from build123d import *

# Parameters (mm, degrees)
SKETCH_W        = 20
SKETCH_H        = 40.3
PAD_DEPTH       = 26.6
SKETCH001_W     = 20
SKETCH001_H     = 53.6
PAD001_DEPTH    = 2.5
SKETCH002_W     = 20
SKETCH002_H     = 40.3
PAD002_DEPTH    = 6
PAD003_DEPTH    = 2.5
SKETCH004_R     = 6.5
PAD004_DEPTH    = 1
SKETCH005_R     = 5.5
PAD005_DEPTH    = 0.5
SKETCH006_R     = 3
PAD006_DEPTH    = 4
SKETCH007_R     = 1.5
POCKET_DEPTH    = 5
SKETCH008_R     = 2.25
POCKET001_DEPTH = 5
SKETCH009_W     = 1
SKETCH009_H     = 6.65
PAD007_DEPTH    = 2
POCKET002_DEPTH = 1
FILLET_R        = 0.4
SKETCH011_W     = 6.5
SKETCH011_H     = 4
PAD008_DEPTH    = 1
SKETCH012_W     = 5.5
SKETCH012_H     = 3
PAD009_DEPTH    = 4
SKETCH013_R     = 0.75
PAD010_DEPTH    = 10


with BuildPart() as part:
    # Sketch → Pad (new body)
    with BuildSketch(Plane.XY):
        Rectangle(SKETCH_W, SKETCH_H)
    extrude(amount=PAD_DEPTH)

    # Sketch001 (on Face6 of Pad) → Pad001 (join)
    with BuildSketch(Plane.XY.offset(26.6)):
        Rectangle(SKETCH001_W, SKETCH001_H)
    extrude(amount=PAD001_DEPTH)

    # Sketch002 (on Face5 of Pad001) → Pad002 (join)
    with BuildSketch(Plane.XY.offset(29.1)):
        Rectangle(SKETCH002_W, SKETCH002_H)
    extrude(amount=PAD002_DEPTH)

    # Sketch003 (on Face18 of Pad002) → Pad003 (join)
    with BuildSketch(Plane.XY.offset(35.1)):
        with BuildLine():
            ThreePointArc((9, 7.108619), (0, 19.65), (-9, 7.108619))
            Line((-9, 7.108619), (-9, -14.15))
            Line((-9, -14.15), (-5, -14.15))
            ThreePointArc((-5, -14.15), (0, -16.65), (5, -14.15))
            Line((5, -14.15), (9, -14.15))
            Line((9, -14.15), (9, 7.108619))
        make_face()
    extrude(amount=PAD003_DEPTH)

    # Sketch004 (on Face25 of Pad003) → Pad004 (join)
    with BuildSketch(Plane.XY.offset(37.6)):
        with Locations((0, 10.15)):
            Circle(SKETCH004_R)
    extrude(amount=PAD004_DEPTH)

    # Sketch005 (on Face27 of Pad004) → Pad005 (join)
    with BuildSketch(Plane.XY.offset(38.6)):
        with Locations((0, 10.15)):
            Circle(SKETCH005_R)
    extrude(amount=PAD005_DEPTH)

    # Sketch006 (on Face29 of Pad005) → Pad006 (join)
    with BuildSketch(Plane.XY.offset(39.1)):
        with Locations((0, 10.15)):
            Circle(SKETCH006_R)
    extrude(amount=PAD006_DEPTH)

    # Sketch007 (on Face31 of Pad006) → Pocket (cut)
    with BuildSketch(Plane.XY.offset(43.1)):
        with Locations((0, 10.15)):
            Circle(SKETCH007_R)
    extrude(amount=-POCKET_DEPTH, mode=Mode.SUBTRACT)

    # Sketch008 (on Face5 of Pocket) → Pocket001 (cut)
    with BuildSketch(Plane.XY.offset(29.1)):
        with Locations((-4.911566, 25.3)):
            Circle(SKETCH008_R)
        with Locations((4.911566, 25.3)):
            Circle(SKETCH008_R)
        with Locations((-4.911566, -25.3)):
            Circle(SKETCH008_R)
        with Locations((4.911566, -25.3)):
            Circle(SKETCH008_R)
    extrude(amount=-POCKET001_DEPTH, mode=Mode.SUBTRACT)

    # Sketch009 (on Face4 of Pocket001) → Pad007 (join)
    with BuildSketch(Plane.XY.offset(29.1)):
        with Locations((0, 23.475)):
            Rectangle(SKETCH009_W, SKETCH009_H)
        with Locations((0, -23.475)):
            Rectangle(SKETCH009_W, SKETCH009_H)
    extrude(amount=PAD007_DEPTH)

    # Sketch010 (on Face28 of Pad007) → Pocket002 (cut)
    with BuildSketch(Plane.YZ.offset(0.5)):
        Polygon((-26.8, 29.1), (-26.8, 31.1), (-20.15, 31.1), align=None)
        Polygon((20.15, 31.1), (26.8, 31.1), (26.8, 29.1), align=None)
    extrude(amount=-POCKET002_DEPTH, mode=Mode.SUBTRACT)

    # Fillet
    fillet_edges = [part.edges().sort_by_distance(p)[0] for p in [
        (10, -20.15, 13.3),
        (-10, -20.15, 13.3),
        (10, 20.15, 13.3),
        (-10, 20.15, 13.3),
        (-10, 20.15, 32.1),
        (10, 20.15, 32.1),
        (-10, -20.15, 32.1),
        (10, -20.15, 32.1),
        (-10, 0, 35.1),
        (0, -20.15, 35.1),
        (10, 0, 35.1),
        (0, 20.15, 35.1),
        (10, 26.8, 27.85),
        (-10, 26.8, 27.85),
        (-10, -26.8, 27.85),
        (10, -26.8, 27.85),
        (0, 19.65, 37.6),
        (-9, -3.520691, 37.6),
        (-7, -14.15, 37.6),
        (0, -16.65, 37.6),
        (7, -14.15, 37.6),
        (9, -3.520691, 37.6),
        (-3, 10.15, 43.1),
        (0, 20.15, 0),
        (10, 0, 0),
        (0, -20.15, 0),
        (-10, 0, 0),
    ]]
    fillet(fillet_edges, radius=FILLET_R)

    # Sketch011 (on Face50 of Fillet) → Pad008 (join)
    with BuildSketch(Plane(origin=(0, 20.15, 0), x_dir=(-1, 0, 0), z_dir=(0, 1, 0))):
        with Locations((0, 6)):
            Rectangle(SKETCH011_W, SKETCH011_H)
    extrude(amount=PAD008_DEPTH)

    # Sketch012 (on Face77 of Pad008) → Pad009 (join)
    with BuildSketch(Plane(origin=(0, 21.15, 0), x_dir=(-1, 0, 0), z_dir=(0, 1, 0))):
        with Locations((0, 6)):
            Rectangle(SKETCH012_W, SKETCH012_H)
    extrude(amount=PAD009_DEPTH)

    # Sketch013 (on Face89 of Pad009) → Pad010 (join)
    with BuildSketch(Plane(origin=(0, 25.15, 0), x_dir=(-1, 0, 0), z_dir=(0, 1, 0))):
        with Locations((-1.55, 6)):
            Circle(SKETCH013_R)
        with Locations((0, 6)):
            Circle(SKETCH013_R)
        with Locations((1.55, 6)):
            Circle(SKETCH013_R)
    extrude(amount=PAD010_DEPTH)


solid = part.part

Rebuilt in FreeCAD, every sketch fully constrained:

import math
import FreeCAD as App
import Part
import Sketcher
from FreeCAD import Vector
Q = App.Units.Quantity


def edges_at(feature, points):
    """Names of the edges that pass closest to the given points."""
    edges = feature.Shape.Edges
    near = lambda p: min(range(len(edges)), key=lambda i: edges[i].distToShape(Part.Vertex(*p))[0])
    return sorted({f"Edge{near(p) + 1}" for p in points})

doc = App.newDocument("Part")
body = doc.addObject("PartDesign::Body", "Body")

# Sketch on XY plane
sketch1 = doc.addObject("Sketcher::SketchObject", "Sketch")
body.addObject(sketch1)
sketch1.AttachmentSupport = (doc.XY_Plane, [""])
sketch1.MapMode = "FlatFace"
sketch1.addGeometry(Part.LineSegment(Vector(-10, 20, 0), Vector(-10, -20, 0)), False)
sketch1.addGeometry(Part.LineSegment(Vector(-10, -20, 0), Vector(10, -20, 0)), False)
sketch1.addGeometry(Part.LineSegment(Vector(10, -20, 0), Vector(10, 20, 0)), False)
sketch1.addGeometry(Part.LineSegment(Vector(10, 20, 0), Vector(-10, 20, 0)), False)
sketch1.addConstraint(Sketcher.Constraint("Coincident", 0, 2, 1, 1))
sketch1.addConstraint(Sketcher.Constraint("Coincident", 1, 2, 2, 1))
sketch1.addConstraint(Sketcher.Constraint("Coincident", 2, 2, 3, 1))
sketch1.addConstraint(Sketcher.Constraint("Coincident", 3, 2, 0, 1))
sketch1.addConstraint(Sketcher.Constraint("Vertical", 0))
sketch1.addConstraint(Sketcher.Constraint("Horizontal", 1))
sketch1.addConstraint(Sketcher.Constraint("Vertical", 2))
sketch1.addConstraint(Sketcher.Constraint("Horizontal", 3))
sketch1.addConstraint(Sketcher.Constraint("Symmetric", 0, 2, 2, 2, -1, 1))
sketch1.addConstraint(Sketcher.Constraint("DistanceX", 1, 1, 1, 2, Q("20 mm")))
sketch1.addConstraint(Sketcher.Constraint("DistanceY", 0, 2, 0, 1, Q("40.3 mm")))
pad1 = doc.addObject("PartDesign::Pad", "Pad")
body.addObject(pad1)
pad1.Profile = sketch1
pad1.Length = 26.6

# Sketch on XY plane
sketch2 = doc.addObject("Sketcher::SketchObject", "Sketch001")
body.addObject(sketch2)
sketch2.AttachmentSupport = (doc.XY_Plane, [""])
sketch2.MapMode = "FlatFace"
sketch2.AttachmentOffset = App.Placement(Vector(0, 0, 26.6), App.Rotation())
sketch2.addGeometry(Part.LineSegment(Vector(-10, 27, 0), Vector(-10, -27, 0)), False)
sketch2.addGeometry(Part.LineSegment(Vector(-10, -27, 0), Vector(10, -27, 0)), False)
sketch2.addGeometry(Part.LineSegment(Vector(10, -27, 0), Vector(10, 27, 0)), False)
sketch2.addGeometry(Part.LineSegment(Vector(10, 27, 0), Vector(-10, 27, 0)), False)
sketch2.addConstraint(Sketcher.Constraint("Coincident", 0, 2, 1, 1))
sketch2.addConstraint(Sketcher.Constraint("Coincident", 1, 2, 2, 1))
sketch2.addConstraint(Sketcher.Constraint("Coincident", 2, 2, 3, 1))
sketch2.addConstraint(Sketcher.Constraint("Coincident", 3, 2, 0, 1))
sketch2.addConstraint(Sketcher.Constraint("Vertical", 0))
sketch2.addConstraint(Sketcher.Constraint("Horizontal", 1))
sketch2.addConstraint(Sketcher.Constraint("Vertical", 2))
sketch2.addConstraint(Sketcher.Constraint("Horizontal", 3))
sketch2.addConstraint(Sketcher.Constraint("Symmetric", 0, 2, 2, 2, -1, 1))
sketch2.addConstraint(Sketcher.Constraint("DistanceX", 1, 1, 1, 2, Q("20 mm")))
sketch2.addConstraint(Sketcher.Constraint("DistanceY", 0, 2, 0, 1, Q("53.6 mm")))
pad2 = doc.addObject("PartDesign::Pad", "Pad001")
body.addObject(pad2)
pad2.Profile = sketch2
pad2.Length = 2.5

# Sketch on XY plane
sketch3 = doc.addObject("Sketcher::SketchObject", "Sketch002")
body.addObject(sketch3)
sketch3.AttachmentSupport = (doc.XY_Plane, [""])
sketch3.MapMode = "FlatFace"
sketch3.AttachmentOffset = App.Placement(Vector(0, 0, 29.1), App.Rotation())
sketch3.addGeometry(Part.LineSegment(Vector(-10, 20, 0), Vector(-10, -20, 0)), False)
sketch3.addGeometry(Part.LineSegment(Vector(-10, -20, 0), Vector(10, -20, 0)), False)
sketch3.addGeometry(Part.LineSegment(Vector(10, -20, 0), Vector(10, 20, 0)), False)
sketch3.addGeometry(Part.LineSegment(Vector(10, 20, 0), Vector(-10, 20, 0)), False)
sketch3.addConstraint(Sketcher.Constraint("Coincident", 0, 2, 1, 1))
sketch3.addConstraint(Sketcher.Constraint("Coincident", 1, 2, 2, 1))
sketch3.addConstraint(Sketcher.Constraint("Coincident", 2, 2, 3, 1))
sketch3.addConstraint(Sketcher.Constraint("Coincident", 3, 2, 0, 1))
sketch3.addConstraint(Sketcher.Constraint("Vertical", 0))
sketch3.addConstraint(Sketcher.Constraint("Horizontal", 1))
sketch3.addConstraint(Sketcher.Constraint("Vertical", 2))
sketch3.addConstraint(Sketcher.Constraint("Horizontal", 3))
sketch3.addConstraint(Sketcher.Constraint("Symmetric", 0, 2, 2, 2, -1, 1))
sketch3.addConstraint(Sketcher.Constraint("DistanceX", 1, 1, 1, 2, Q("20 mm")))
sketch3.addConstraint(Sketcher.Constraint("DistanceY", 0, 2, 0, 1, Q("40.3 mm")))
pad3 = doc.addObject("PartDesign::Pad", "Pad002")
body.addObject(pad3)
pad3.Profile = sketch3
pad3.Length = 6

# Sketch on XY plane
sketch4 = doc.addObject("Sketcher::SketchObject", "Sketch003")
body.addObject(sketch4)
sketch4.AttachmentSupport = (doc.XY_Plane, [""])
sketch4.MapMode = "FlatFace"
sketch4.AttachmentOffset = App.Placement(Vector(0, 0, 35.1), App.Rotation())
sketch4.addGeometry(Part.ArcOfCircle(Part.Circle(Vector(0, 10.2, 0), Vector(0, 0, 1), 9.5), math.radians(-19), math.radians(199)), False)
sketch4.addGeometry(Part.LineSegment(Vector(-9, 7.1, 0), Vector(-9, -14.2, 0)), False)
sketch4.addGeometry(Part.LineSegment(Vector(-9, -14.2, 0), Vector(-5, -14.2, 0)), False)
sketch4.addGeometry(Part.ArcOfCircle(Part.Circle(Vector(0, -10.4, 0), Vector(0, 0, 1), 6.2), math.radians(-143), math.radians(-37)), False)
sketch4.addGeometry(Part.LineSegment(Vector(5, -14.2, 0), Vector(9, -14.2, 0)), False)
sketch4.addGeometry(Part.LineSegment(Vector(9, -14.2, 0), Vector(9, 7.1, 0)), False)
sketch4.addConstraint(Sketcher.Constraint("Coincident", 0, 2, 1, 1))
sketch4.addConstraint(Sketcher.Constraint("Coincident", 1, 2, 2, 1))
sketch4.addConstraint(Sketcher.Constraint("Coincident", 2, 2, 3, 1))
sketch4.addConstraint(Sketcher.Constraint("Coincident", 3, 2, 4, 1))
sketch4.addConstraint(Sketcher.Constraint("Coincident", 4, 2, 5, 1))
sketch4.addConstraint(Sketcher.Constraint("Coincident", 5, 2, 0, 1))
sketch4.addConstraint(Sketcher.Constraint("Vertical", 1))
sketch4.addConstraint(Sketcher.Constraint("Horizontal", 2))
sketch4.addConstraint(Sketcher.Constraint("Horizontal", 4))
sketch4.addConstraint(Sketcher.Constraint("Vertical", 5))
sketch4.addConstraint(Sketcher.Constraint("Symmetric", 2, 2, 3, 2, -2))
sketch4.addConstraint(Sketcher.Constraint("Symmetric", 0, 2, 5, 2, -2))
sketch4.addConstraint(Sketcher.Constraint("Radius", 0, Q("9.5 mm")))
sketch4.addConstraint(Sketcher.Constraint("DistanceX", 2, 1, 2, 2, Q("4 mm")))
sketch4.addConstraint(Sketcher.Constraint("Radius", 3, Q("6.25 mm")))
sketch4.addConstraint(Sketcher.Constraint("DistanceX", 0, 2, -1, 1, Q("9 mm")))
sketch4.addConstraint(Sketcher.Constraint("DistanceY", 3, 3, -1, 1, Q("10.4 mm")))
sketch4.addConstraint(Sketcher.Constraint("DistanceY", 1, 2, 0, 3, Q("24.3 mm")))
pad4 = doc.addObject("PartDesign::Pad", "Pad003")
body.addObject(pad4)
pad4.Profile = sketch4
pad4.Length = 2.5

# Sketch on XY plane
sketch5 = doc.addObject("Sketcher::SketchObject", "Sketch004")
body.addObject(sketch5)
sketch5.AttachmentSupport = (doc.XY_Plane, [""])
sketch5.MapMode = "FlatFace"
sketch5.AttachmentOffset = App.Placement(Vector(0, 0, 37.6), App.Rotation())
sketch5.addGeometry(Part.Circle(Vector(0, 10, 0), Vector(0, 0, 1), 6), False)
sketch5.addConstraint(Sketcher.Constraint("PointOnObject", 0, 3, -2))
sketch5.addConstraint(Sketcher.Constraint("Diameter", 0, Q("13 mm")))
sketch5.addConstraint(Sketcher.Constraint("DistanceY", -1, 1, 0, 3, Q("10.15 mm")))
pad5 = doc.addObject("PartDesign::Pad", "Pad004")
body.addObject(pad5)
pad5.Profile = sketch5
pad5.Length = 1

# Sketch on XY plane
sketch6 = doc.addObject("Sketcher::SketchObject", "Sketch005")
body.addObject(sketch6)
sketch6.AttachmentSupport = (doc.XY_Plane, [""])
sketch6.MapMode = "FlatFace"
sketch6.AttachmentOffset = App.Placement(Vector(0, 0, 38.6), App.Rotation())
sketch6.addGeometry(Part.Circle(Vector(0, 10, 0), Vector(0, 0, 1), 6), False)
sketch6.addConstraint(Sketcher.Constraint("PointOnObject", 0, 3, -2))
sketch6.addConstraint(Sketcher.Constraint("Diameter", 0, Q("11 mm")))
sketch6.addConstraint(Sketcher.Constraint("DistanceY", -1, 1, 0, 3, Q("10.15 mm")))
pad6 = doc.addObject("PartDesign::Pad", "Pad005")
body.addObject(pad6)
pad6.Profile = sketch6
pad6.Length = 0.5

# Sketch on XY plane
sketch7 = doc.addObject("Sketcher::SketchObject", "Sketch006")
body.addObject(sketch7)
sketch7.AttachmentSupport = (doc.XY_Plane, [""])
sketch7.MapMode = "FlatFace"
sketch7.AttachmentOffset = App.Placement(Vector(0, 0, 39.1), App.Rotation())
sketch7.addGeometry(Part.Circle(Vector(0, 10.2, 0), Vector(0, 0, 1), 3), False)
sketch7.addConstraint(Sketcher.Constraint("PointOnObject", 0, 3, -2))
sketch7.addConstraint(Sketcher.Constraint("Diameter", 0, Q("6 mm")))
sketch7.addConstraint(Sketcher.Constraint("DistanceY", -1, 1, 0, 3, Q("10.15 mm")))
pad7 = doc.addObject("PartDesign::Pad", "Pad006")
body.addObject(pad7)
pad7.Profile = sketch7
pad7.Length = 4

# Sketch on XY plane
sketch8 = doc.addObject("Sketcher::SketchObject", "Sketch007")
body.addObject(sketch8)
sketch8.AttachmentSupport = (doc.XY_Plane, [""])
sketch8.MapMode = "FlatFace"
sketch8.AttachmentOffset = App.Placement(Vector(0, 0, 43.1), App.Rotation())
sketch8.addGeometry(Part.Circle(Vector(0, 10.2, 0), Vector(0, 0, 1), 1.5), False)
sketch8.addConstraint(Sketcher.Constraint("PointOnObject", 0, 3, -2))
sketch8.addConstraint(Sketcher.Constraint("Diameter", 0, Q("3 mm")))
sketch8.addConstraint(Sketcher.Constraint("DistanceY", -1, 1, 0, 3, Q("10.15 mm")))
pocket1 = doc.addObject("PartDesign::Pocket", "Pocket")
body.addObject(pocket1)
pocket1.Profile = sketch8
pocket1.Length = 5

# Sketch on XY plane
sketch9 = doc.addObject("Sketcher::SketchObject", "Sketch008")
body.addObject(sketch9)
sketch9.AttachmentSupport = (doc.XY_Plane, [""])
sketch9.MapMode = "FlatFace"
sketch9.AttachmentOffset = App.Placement(Vector(0, 0, 29.1), App.Rotation())
sketch9.addGeometry(Part.Circle(Vector(-4.9, 25.3, 0), Vector(0, 0, 1), 2.2), False)
sketch9.addGeometry(Part.Circle(Vector(4.9, 25.3, 0), Vector(0, 0, 1), 2.2), False)
sketch9.addGeometry(Part.Circle(Vector(-4.9, -25.3, 0), Vector(0, 0, 1), 2.2), False)
sketch9.addGeometry(Part.Circle(Vector(4.9, -25.3, 0), Vector(0, 0, 1), 2.2), False)
sketch9.addConstraint(Sketcher.Constraint("Equal", 0, 1))
sketch9.addConstraint(Sketcher.Constraint("Equal", 1, 2))
sketch9.addConstraint(Sketcher.Constraint("Equal", 2, 3))
sketch9.addConstraint(Sketcher.Constraint("Symmetric", 1, 3, 2, 3, -1, 1))
sketch9.addConstraint(Sketcher.Constraint("Symmetric", 0, 3, 3, 3, -1, 1))
sketch9.addConstraint(Sketcher.Constraint("Symmetric", 0, 3, 1, 3, -2))
sketch9.addConstraint(Sketcher.Constraint("Diameter", 0, Q("4.5 mm")))
sketch9.addConstraint(Sketcher.Constraint("DistanceY", -1, 1, 0, 3, Q("25.3 mm")))
sketch9.addConstraint(Sketcher.Constraint("DistanceX", 0, 3, 1, 3, Q("9.823132 mm")))
pocket2 = doc.addObject("PartDesign::Pocket", "Pocket001")
body.addObject(pocket2)
pocket2.Profile = sketch9
pocket2.Length = 5

# Sketch on XY plane
sketch10 = doc.addObject("Sketcher::SketchObject", "Sketch009")
body.addObject(sketch10)
sketch10.AttachmentSupport = (doc.XY_Plane, [""])
sketch10.MapMode = "FlatFace"
sketch10.AttachmentOffset = App.Placement(Vector(0, 0, 29.1), App.Rotation())
sketch10.addGeometry(Part.LineSegment(Vector(-0.5, 26.8, 0), Vector(-0.5, 20.1, 0)), False)
sketch10.addGeometry(Part.LineSegment(Vector(-0.5, 20.1, 0), Vector(0.5, 20.1, 0)), False)
sketch10.addGeometry(Part.LineSegment(Vector(0.5, 20.1, 0), Vector(0.5, 26.8, 0)), False)
sketch10.addGeometry(Part.LineSegment(Vector(0.5, 26.8, 0), Vector(-0.5, 26.8, 0)), False)
sketch10.addGeometry(Part.LineSegment(Vector(-0.5, -20.1, 0), Vector(-0.5, -26.8, 0)), False)
sketch10.addGeometry(Part.LineSegment(Vector(-0.5, -26.8, 0), Vector(0.5, -26.8, 0)), False)
sketch10.addGeometry(Part.LineSegment(Vector(0.5, -26.8, 0), Vector(0.5, -20.1, 0)), False)
sketch10.addGeometry(Part.LineSegment(Vector(0.5, -20.1, 0), Vector(-0.5, -20.1, 0)), False)
sketch10.addConstraint(Sketcher.Constraint("Coincident", 0, 2, 1, 1))
sketch10.addConstraint(Sketcher.Constraint("Coincident", 1, 2, 2, 1))
sketch10.addConstraint(Sketcher.Constraint("Coincident", 2, 2, 3, 1))
sketch10.addConstraint(Sketcher.Constraint("Coincident", 3, 2, 0, 1))
sketch10.addConstraint(Sketcher.Constraint("Coincident", 4, 2, 5, 1))
sketch10.addConstraint(Sketcher.Constraint("Coincident", 5, 2, 6, 1))
sketch10.addConstraint(Sketcher.Constraint("Coincident", 6, 2, 7, 1))
sketch10.addConstraint(Sketcher.Constraint("Coincident", 7, 2, 4, 1))
sketch10.addConstraint(Sketcher.Constraint("Vertical", 0))
sketch10.addConstraint(Sketcher.Constraint("Horizontal", 1))
sketch10.addConstraint(Sketcher.Constraint("Vertical", 2))
sketch10.addConstraint(Sketcher.Constraint("Horizontal", 3))
sketch10.addConstraint(Sketcher.Constraint("Vertical", 4))
sketch10.addConstraint(Sketcher.Constraint("Horizontal", 5))
sketch10.addConstraint(Sketcher.Constraint("Vertical", 6))
sketch10.addConstraint(Sketcher.Constraint("Horizontal", 7))
sketch10.addConstraint(Sketcher.Constraint("Symmetric", 2, 2, 4, 2, -1, 1))
sketch10.addConstraint(Sketcher.Constraint("Symmetric", 0, 2, 6, 2, -1, 1))
sketch10.addConstraint(Sketcher.Constraint("Vertical", 3, 2, 4, 2))
sketch10.addConstraint(Sketcher.Constraint("DistanceX", 1, 1, 1, 2, Q("1 mm")))
sketch10.addConstraint(Sketcher.Constraint("DistanceY", 0, 2, 0, 1, Q("6.65 mm")))
sketch10.addConstraint(Sketcher.Constraint("DistanceY", -1, 1, 2, 2, Q("26.8 mm")))
pad8 = doc.addObject("PartDesign::Pad", "Pad007")
body.addObject(pad8)
pad8.Profile = sketch10
pad8.Length = 2

# Sketch on YZ plane
sketch11 = doc.addObject("Sketcher::SketchObject", "Sketch010")
body.addObject(sketch11)
sketch11.AttachmentSupport = (doc.YZ_Plane, [""])
sketch11.MapMode = "FlatFace"
sketch11.AttachmentOffset = App.Placement(Vector(0, 0, 0.5), App.Rotation())
sketch11.addGeometry(Part.LineSegment(Vector(-26.8, 31.1, 0), Vector(-26.8, 29.1, 0)), False)
sketch11.addGeometry(Part.LineSegment(Vector(-26.8, 29.1, 0), Vector(-20.1, 31.1, 0)), False)
sketch11.addGeometry(Part.LineSegment(Vector(-20.1, 31.1, 0), Vector(-26.8, 31.1, 0)), False)
sketch11.addGeometry(Part.LineSegment(Vector(26.8, 31.1, 0), Vector(20.1, 31.1, 0)), False)
sketch11.addGeometry(Part.LineSegment(Vector(20.1, 31.1, 0), Vector(26.8, 29.1, 0)), False)
sketch11.addGeometry(Part.LineSegment(Vector(26.8, 29.1, 0), Vector(26.8, 31.1, 0)), False)
sketch11.addConstraint(Sketcher.Constraint("Coincident", 0, 2, 1, 1))
sketch11.addConstraint(Sketcher.Constraint("Coincident", 1, 2, 2, 1))
sketch11.addConstraint(Sketcher.Constraint("Coincident", 2, 2, 0, 1))
sketch11.addConstraint(Sketcher.Constraint("Coincident", 3, 2, 4, 1))
sketch11.addConstraint(Sketcher.Constraint("Coincident", 4, 2, 5, 1))
sketch11.addConstraint(Sketcher.Constraint("Coincident", 5, 2, 3, 1))
sketch11.addConstraint(Sketcher.Constraint("Vertical", 0))
sketch11.addConstraint(Sketcher.Constraint("Horizontal", 2))
sketch11.addConstraint(Sketcher.Constraint("Horizontal", 3))
sketch11.addConstraint(Sketcher.Constraint("Vertical", 5))
sketch11.addConstraint(Sketcher.Constraint("Symmetric", 1, 2, 3, 2, -2))
sketch11.addConstraint(Sketcher.Constraint("Symmetric", 0, 2, 4, 2, -2))
sketch11.addConstraint(Sketcher.Constraint("DistanceY", 0, 2, 0, 1, Q("2 mm")))
sketch11.addConstraint(Sketcher.Constraint("DistanceX", 2, 2, 2, 1, Q("6.65 mm")))
sketch11.addConstraint(Sketcher.Constraint("DistanceX", 0, 2, -1, 1, Q("26.8 mm")))
sketch11.addConstraint(Sketcher.Constraint("DistanceY", -1, 1, 0, 2, Q("29.1 mm")))
pocket3 = doc.addObject("PartDesign::Pocket", "Pocket002")
body.addObject(pocket3)
pocket3.Profile = sketch11
pocket3.Length = 1
doc.recompute()

fillet = doc.addObject("PartDesign::Fillet", "Fillet")
body.addObject(fillet)
fillet.Base = (pocket3, edges_at(pocket3, [
    (10, -20.15, 13.3),
    (-10, -20.15, 13.3),
    (10, 20.15, 13.3),
    (-10, 20.15, 13.3),
    (-10, 20.15, 32.1),
    (10, 20.15, 32.1),
    (-10, -20.15, 32.1),
    (10, -20.15, 32.1),
    (-10, 0, 35.1),
    (0, -20.15, 35.1),
    (10, 0, 35.1),
    (0, 20.15, 35.1),
    (10, 26.8, 27.85),
    (-10, 26.8, 27.85),
    (-10, -26.8, 27.85),
    (10, -26.8, 27.85),
    (0, 19.65, 37.6),
    (-9, -3.521, 37.6),
    (-7, -14.15, 37.6),
    (0, -16.65, 37.6),
    (7, -14.15, 37.6),
    (9, -3.521, 37.6),
    (-3, 10.15, 43.1),
    (0, 20.15, 0),
    (10, 0, 0),
    (0, -20.15, 0),
    (-10, 0, 0),
]))
fillet.Radius = 0.4

# Sketch on XZ plane
sketch12 = doc.addObject("Sketcher::SketchObject", "Sketch011")
body.addObject(sketch12)
sketch12.AttachmentSupport = (doc.XZ_Plane, [""])
sketch12.MapMode = "FlatFace"
sketch12.AttachmentOffset = App.Placement(Vector(0, 0, -20.15), App.Rotation())
sketch12.addGeometry(Part.LineSegment(Vector(3.2, 8, 0), Vector(3.2, 4, 0)), False)
sketch12.addGeometry(Part.LineSegment(Vector(3.2, 4, 0), Vector(-3.2, 4, 0)), False)
sketch12.addGeometry(Part.LineSegment(Vector(-3.2, 4, 0), Vector(-3.2, 8, 0)), False)
sketch12.addGeometry(Part.LineSegment(Vector(-3.2, 8, 0), Vector(3.2, 8, 0)), False)
sketch12.addConstraint(Sketcher.Constraint("Coincident", 0, 2, 1, 1))
sketch12.addConstraint(Sketcher.Constraint("Coincident", 1, 2, 2, 1))
sketch12.addConstraint(Sketcher.Constraint("Coincident", 2, 2, 3, 1))
sketch12.addConstraint(Sketcher.Constraint("Coincident", 3, 2, 0, 1))
sketch12.addConstraint(Sketcher.Constraint("Vertical", 0))
sketch12.addConstraint(Sketcher.Constraint("Horizontal", 1))
sketch12.addConstraint(Sketcher.Constraint("Vertical", 2))
sketch12.addConstraint(Sketcher.Constraint("Horizontal", 3))
sketch12.addConstraint(Sketcher.Constraint("DistanceY", 0, 2, 0, 1, Q("4 mm")))
sketch12.addConstraint(Sketcher.Constraint("DistanceX", 1, 2, 1, 1, Q("6.5 mm")))
sketch12.addConstraint(Sketcher.Constraint("DistanceY", -1, 1, 0, 2, Q("4 mm")))
sketch12.addConstraint(Sketcher.Constraint("DistanceX", -1, 1, 0, 2, Q("3.25 mm")))
pad9 = doc.addObject("PartDesign::Pad", "Pad008")
body.addObject(pad9)
pad9.Profile = sketch12
pad9.Length = 1
pad9.Reversed = True

# Sketch on XZ plane
sketch13 = doc.addObject("Sketcher::SketchObject", "Sketch012")
body.addObject(sketch13)
sketch13.AttachmentSupport = (doc.XZ_Plane, [""])
sketch13.MapMode = "FlatFace"
sketch13.AttachmentOffset = App.Placement(Vector(0, 0, -21.15), App.Rotation())
sketch13.addGeometry(Part.LineSegment(Vector(2.8, 7.5, 0), Vector(2.8, 4.5, 0)), False)
sketch13.addGeometry(Part.LineSegment(Vector(2.8, 4.5, 0), Vector(-2.8, 4.5, 0)), False)
sketch13.addGeometry(Part.LineSegment(Vector(-2.8, 4.5, 0), Vector(-2.8, 7.5, 0)), False)
sketch13.addGeometry(Part.LineSegment(Vector(-2.8, 7.5, 0), Vector(2.8, 7.5, 0)), False)
sketch13.addConstraint(Sketcher.Constraint("Coincident", 0, 2, 1, 1))
sketch13.addConstraint(Sketcher.Constraint("Coincident", 1, 2, 2, 1))
sketch13.addConstraint(Sketcher.Constraint("Coincident", 2, 2, 3, 1))
sketch13.addConstraint(Sketcher.Constraint("Coincident", 3, 2, 0, 1))
sketch13.addConstraint(Sketcher.Constraint("Vertical", 0))
sketch13.addConstraint(Sketcher.Constraint("Horizontal", 1))
sketch13.addConstraint(Sketcher.Constraint("Vertical", 2))
sketch13.addConstraint(Sketcher.Constraint("Horizontal", 3))
sketch13.addConstraint(Sketcher.Constraint("DistanceY", 0, 2, 0, 1, Q("3 mm")))
sketch13.addConstraint(Sketcher.Constraint("DistanceX", 1, 2, 1, 1, Q("5.5 mm")))
sketch13.addConstraint(Sketcher.Constraint("DistanceY", -1, 1, 0, 2, Q("4.5 mm")))
sketch13.addConstraint(Sketcher.Constraint("DistanceX", -1, 1, 0, 2, Q("2.75 mm")))
pad10 = doc.addObject("PartDesign::Pad", "Pad009")
body.addObject(pad10)
pad10.Profile = sketch13
pad10.Length = 4
pad10.Reversed = True

# Sketch on XZ plane
sketch14 = doc.addObject("Sketcher::SketchObject", "Sketch013")
body.addObject(sketch14)
sketch14.AttachmentSupport = (doc.XZ_Plane, [""])
sketch14.MapMode = "FlatFace"
sketch14.AttachmentOffset = App.Placement(Vector(0, 0, -25.15), App.Rotation())
sketch14.addGeometry(Part.Circle(Vector(1.6, 6, 0), Vector(0, 0, 1), 0.8), False)
sketch14.addGeometry(Part.Circle(Vector(0, 6, 0), Vector(0, 0, 1), 0.8), False)
sketch14.addGeometry(Part.Circle(Vector(-1.6, 6, 0), Vector(0, 0, 1), 0.8), False)
sketch14.addConstraint(Sketcher.Constraint("Equal", 0, 1))
sketch14.addConstraint(Sketcher.Constraint("Equal", 1, 2))
sketch14.addConstraint(Sketcher.Constraint("Symmetric", 0, 3, 2, 3, -2))
sketch14.addConstraint(Sketcher.Constraint("PointOnObject", 1, 3, -2))
sketch14.addConstraint(Sketcher.Constraint("Horizontal", 0, 3, 1, 3))
sketch14.addConstraint(Sketcher.Constraint("Diameter", 0, Q("1.5 mm")))
sketch14.addConstraint(Sketcher.Constraint("DistanceY", -1, 1, 0, 3, Q("6 mm")))
sketch14.addConstraint(Sketcher.Constraint("DistanceX", 2, 3, 0, 3, Q("3.1 mm")))
pad11 = doc.addObject("PartDesign::Pad", "Pad010")
body.addObject(pad11)
pad11.Profile = sketch14
pad11.Length = 10
pad11.Reversed = True

doc.recompute()
